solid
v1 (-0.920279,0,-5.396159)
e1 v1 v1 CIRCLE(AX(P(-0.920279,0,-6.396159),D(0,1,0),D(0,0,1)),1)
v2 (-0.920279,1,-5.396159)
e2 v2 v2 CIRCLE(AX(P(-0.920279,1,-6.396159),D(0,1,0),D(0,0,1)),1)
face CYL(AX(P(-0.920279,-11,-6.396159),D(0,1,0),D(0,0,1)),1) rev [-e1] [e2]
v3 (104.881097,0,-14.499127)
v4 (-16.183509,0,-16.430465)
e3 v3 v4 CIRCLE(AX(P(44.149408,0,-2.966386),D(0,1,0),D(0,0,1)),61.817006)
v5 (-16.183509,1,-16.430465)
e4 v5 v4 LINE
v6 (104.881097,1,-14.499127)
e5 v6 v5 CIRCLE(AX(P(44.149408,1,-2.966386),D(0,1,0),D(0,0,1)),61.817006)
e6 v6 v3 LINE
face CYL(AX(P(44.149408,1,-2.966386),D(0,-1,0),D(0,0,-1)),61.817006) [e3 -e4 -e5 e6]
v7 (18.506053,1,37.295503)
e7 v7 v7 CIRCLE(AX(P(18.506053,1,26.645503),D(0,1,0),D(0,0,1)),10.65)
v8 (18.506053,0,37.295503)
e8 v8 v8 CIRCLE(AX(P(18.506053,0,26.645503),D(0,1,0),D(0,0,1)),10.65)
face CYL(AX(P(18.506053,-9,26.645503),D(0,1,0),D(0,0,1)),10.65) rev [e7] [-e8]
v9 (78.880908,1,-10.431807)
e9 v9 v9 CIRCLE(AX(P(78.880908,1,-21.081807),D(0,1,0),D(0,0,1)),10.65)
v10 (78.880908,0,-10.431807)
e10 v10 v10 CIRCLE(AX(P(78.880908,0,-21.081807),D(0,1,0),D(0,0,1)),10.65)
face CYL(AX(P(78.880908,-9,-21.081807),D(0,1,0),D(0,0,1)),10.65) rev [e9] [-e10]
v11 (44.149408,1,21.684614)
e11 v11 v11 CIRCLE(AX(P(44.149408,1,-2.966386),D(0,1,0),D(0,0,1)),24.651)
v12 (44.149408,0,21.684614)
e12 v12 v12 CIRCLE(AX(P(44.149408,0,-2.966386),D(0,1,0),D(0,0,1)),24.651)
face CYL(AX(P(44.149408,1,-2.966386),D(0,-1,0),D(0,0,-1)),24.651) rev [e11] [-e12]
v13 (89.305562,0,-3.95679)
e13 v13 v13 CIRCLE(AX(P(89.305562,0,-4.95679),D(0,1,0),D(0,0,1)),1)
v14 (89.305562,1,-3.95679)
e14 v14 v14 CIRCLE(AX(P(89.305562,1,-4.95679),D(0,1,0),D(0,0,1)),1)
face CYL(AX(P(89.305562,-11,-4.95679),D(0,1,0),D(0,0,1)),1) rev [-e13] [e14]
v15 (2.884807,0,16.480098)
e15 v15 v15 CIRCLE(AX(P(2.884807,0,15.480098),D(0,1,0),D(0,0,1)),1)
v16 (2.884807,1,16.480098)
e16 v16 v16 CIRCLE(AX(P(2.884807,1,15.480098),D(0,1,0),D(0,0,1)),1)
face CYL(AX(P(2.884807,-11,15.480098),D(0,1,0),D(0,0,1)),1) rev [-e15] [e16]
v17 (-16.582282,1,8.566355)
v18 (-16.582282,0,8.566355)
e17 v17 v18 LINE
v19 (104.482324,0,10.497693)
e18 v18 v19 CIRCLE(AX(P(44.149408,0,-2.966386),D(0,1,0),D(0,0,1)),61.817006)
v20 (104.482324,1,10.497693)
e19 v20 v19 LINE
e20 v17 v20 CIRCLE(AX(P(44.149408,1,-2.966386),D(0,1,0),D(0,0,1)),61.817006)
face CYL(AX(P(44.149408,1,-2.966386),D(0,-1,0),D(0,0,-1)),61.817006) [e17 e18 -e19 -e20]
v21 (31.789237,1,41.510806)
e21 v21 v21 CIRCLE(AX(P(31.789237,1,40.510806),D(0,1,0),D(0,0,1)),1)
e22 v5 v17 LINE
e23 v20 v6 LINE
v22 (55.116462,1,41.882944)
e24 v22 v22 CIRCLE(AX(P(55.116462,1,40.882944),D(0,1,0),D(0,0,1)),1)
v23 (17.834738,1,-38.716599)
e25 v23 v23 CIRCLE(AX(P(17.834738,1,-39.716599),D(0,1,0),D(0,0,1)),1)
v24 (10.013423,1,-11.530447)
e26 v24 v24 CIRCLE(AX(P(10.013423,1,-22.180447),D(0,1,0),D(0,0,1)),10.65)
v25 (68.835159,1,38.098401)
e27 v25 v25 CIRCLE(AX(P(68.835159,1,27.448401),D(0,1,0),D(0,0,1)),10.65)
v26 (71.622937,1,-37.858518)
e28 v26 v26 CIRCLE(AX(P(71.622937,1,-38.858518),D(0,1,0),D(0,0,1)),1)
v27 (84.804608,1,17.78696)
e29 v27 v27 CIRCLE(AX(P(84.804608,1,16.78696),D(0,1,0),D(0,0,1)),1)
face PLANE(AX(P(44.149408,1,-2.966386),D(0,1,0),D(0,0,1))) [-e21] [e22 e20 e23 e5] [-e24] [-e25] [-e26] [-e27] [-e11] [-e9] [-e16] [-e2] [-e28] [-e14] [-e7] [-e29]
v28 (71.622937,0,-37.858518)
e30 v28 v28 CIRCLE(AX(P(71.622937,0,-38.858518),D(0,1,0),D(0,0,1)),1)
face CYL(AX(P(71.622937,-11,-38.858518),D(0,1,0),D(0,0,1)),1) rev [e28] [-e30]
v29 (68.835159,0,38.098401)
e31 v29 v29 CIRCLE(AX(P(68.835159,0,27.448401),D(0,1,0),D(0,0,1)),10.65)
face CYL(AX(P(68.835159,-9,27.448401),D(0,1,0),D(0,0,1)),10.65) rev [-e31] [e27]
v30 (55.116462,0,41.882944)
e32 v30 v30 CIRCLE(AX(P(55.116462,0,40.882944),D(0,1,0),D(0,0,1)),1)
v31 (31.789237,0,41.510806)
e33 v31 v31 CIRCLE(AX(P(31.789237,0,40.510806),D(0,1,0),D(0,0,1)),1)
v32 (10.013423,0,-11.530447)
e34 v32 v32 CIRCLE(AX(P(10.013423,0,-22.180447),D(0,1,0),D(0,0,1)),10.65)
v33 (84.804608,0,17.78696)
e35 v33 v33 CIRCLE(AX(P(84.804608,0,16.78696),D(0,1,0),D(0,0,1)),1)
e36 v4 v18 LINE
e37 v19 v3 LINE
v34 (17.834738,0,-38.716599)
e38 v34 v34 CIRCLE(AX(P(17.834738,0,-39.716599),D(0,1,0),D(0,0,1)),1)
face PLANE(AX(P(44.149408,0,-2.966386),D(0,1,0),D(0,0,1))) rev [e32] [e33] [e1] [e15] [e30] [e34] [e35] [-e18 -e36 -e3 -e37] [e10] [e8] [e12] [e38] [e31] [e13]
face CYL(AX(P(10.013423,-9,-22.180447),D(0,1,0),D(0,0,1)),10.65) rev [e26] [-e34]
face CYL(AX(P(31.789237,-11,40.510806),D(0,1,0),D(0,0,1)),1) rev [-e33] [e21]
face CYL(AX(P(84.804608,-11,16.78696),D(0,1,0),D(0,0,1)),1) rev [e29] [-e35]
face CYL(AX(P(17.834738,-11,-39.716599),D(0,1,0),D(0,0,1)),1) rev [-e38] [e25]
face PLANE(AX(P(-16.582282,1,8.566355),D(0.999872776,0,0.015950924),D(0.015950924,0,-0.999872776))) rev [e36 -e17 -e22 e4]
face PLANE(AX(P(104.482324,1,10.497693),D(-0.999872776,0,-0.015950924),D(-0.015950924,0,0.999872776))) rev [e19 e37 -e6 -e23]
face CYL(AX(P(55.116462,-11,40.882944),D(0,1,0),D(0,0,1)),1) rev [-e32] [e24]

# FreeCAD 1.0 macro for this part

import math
import FreeCAD as App
import Part
import Sketcher

V = App.Vector

doc = App.newDocument("Part")
body = doc.addObject("PartDesign::Body", "Body")

# Sketch on XZ plane
sketch1 = body.newObject("Sketcher::SketchObject", "Sketch")
sketch1.AttachmentSupport = (doc.getObject("XZ_Plane"), [""])
sketch1.MapMode = "FlatFace"
sketch1.addGeometry([
    Part.LineSegment(V(-16.183509, -16.430465, 0), V(-16.582282, 8.566355, 0)),  # 0
    Part.ArcOfCircle(Part.Circle(V(44.149408, -2.966386, 0), V(0, 0, 1), 61.817006), math.radians(12.580167), math.radians(169.247752)),  # 1
    Part.LineSegment(V(104.482324, 10.497693, 0), V(104.881097, -14.499127, 0)),  # 2
    Part.ArcOfCircle(Part.Circle(V(44.149408, -2.966386, 0), V(0, 0, 1), 61.817006), math.radians(-167.419833), math.radians(-10.752248)),  # 3
    Part.Circle(V(44.149408, -2.966386, 0), V(0, 0, 1), 24.651),  # 4
], False)
sketch1.addConstraint([
    Sketcher.Constraint("Coincident", 0, 2, 1, 2),
    Sketcher.Constraint("Coincident", 1, 1, 2, 1),
    Sketcher.Constraint("Coincident", 2, 2, 3, 2),
    Sketcher.Constraint("Coincident", 3, 1, 0, 1),
    Sketcher.Constraint("Coincident", 3, 3, 1, 3),
    Sketcher.Constraint("Coincident", 4, 3, 1, 3),
    Sketcher.Constraint("Equal", 1, 3),
    Sketcher.Constraint("Parallel", 0, 2),
    Sketcher.Constraint("Equal", 0, 2),
    Sketcher.Constraint("Distance", 0, 25.0),
    Sketcher.Constraint("Diameter", 4, 49.302),
    Sketcher.Constraint("Radius", 1, 61.817006),
    Sketcher.Constraint("DistanceX", 3, 1, -1, 1, 16.183509),
    Sketcher.Constraint("DistanceX", 0, 2, 1, 3, 60.73169),
    Sketcher.Constraint("DistanceY", 1, 3, -1, 1, 2.966386),
])
pad1 = body.newObject("PartDesign::Pad", "Pad")
pad1.Profile = sketch1
pad1.Length = 1
pad1.Reversed = True

# Sketch on XZ plane
sketch2 = body.newObject("Sketcher::SketchObject", "Sketch001")
sketch2.AttachmentSupport = (doc.getObject("XZ_Plane"), [""])
sketch2.MapMode = "FlatFace"
sketch2.AttachmentOffset = App.Placement(V(0, 0, -1), App.Rotation())
sketch2.addGeometry([
    Part.Circle(V(68.835159, 27.448401, 0), V(0, 0, 1), 10.65),
    Part.Circle(V(18.506053, 26.645503, 0), V(0, 0, 1), 10.65),
    Part.Circle(V(10.013423, -22.180447, 0), V(0, 0, 1), 10.65),
    Part.Circle(V(78.880908, -21.081807, 0), V(0, 0, 1), 10.65),
], False)
sketch2.addConstraint([
    Sketcher.Constraint("Equal", 0, 1),
    Sketcher.Constraint("Equal", 1, 2),
    Sketcher.Constraint("Equal", 2, 3),
    Sketcher.Constraint("Diameter", 0, 21.3),
    Sketcher.Constraint("DistanceY", -1, 1, 0, 3, 27.448401),
    Sketcher.Constraint("DistanceX", -1, 1, 0, 3, 68.835159),
    Sketcher.Constraint("DistanceX", 2, 3, 1, 3, 8.49263),
    Sketcher.Constraint("DistanceY", 2, 3, 1, 3, 48.82595),
    Sketcher.Constraint("DistanceX", 0, 3, 3, 3, 10.045749),
    Sketcher.Constraint("DistanceY", 2, 3, 3, 3, 1.09864),
    Sketcher.Constraint("DistanceX", -1, 1, 1, 3, 18.506053),
    Sketcher.Constraint("DistanceY", -1, 1, 1, 3, 26.645503),
])
pocket1 = body.newObject("PartDesign::Pocket", "Pocket")
pocket1.Profile = sketch2
pocket1.Length = 10
pocket1.Reversed = True

# Sketch on XZ plane
sketch3 = body.newObject("Sketcher::SketchObject", "Sketch002")
sketch3.AttachmentSupport = (doc.getObject("XZ_Plane"), [""])
sketch3.MapMode = "FlatFace"
sketch3.AttachmentOffset = App.Placement(V(0, 0, -1), App.Rotation())
sketch3.addGeometry([
    Part.Circle(V(55.116462, 40.882944, 0), V(0, 0, 1), 1),  # 0
    Part.Circle(V(31.789237, 40.510806, 0), V(0, 0, 1), 1),  # 1
    Part.Circle(V(2.884807, 15.480098, 0), V(0, 0, 1), 1),  # 2
    Part.Circle(V(-0.920279, -6.396159, 0), V(0, 0, 1), 1),  # 3
    Part.Circle(V(17.834738, -39.716599, 0), V(0, 0, 1), 1),  # 4
    Part.Circle(V(71.622937, -38.858518, 0), V(0, 0, 1), 1),  # 5
    Part.Circle(V(89.305562, -4.95679, 0), V(0, 0, 1), 1),  # 6
    Part.Circle(V(84.804608, 16.78696, 0), V(0, 0, 1), 1),  # 7
], False)
sketch3.addConstraint([
    Sketcher.Constraint("Equal", 0, 1),
    Sketcher.Constraint("Equal", 1, 2),
    Sketcher.Constraint("Equal", 2, 3),
    Sketcher.Constraint("Equal", 3, 4),
    Sketcher.Constraint("Equal", 4, 5),
    Sketcher.Constraint("Equal", 5, 6),
    Sketcher.Constraint("Equal", 6, 7),
    Sketcher.Constraint("Diameter", 0, 2.0),
    Sketcher.Constraint("DistanceY", 4, 3, -1, 1, 39.716599),
    Sketcher.Constraint("DistanceX", 4, 3, 1, 3, 13.9545),
    Sketcher.Constraint("DistanceX", 4, 3, 5, 3, 53.7882),
    Sketcher.Constraint("DistanceX", 0, 3, 6, 3, 34.1891),
    Sketcher.Constraint("DistanceX", 2, 3, 7, 3, 81.9198),
    Sketcher.Constraint("DistanceX", -1, 1, 0, 3, 55.116462),
    Sketcher.Constraint("DistanceX", 3, 3, -1, 1, 0.920279),
    Sketcher.Constraint("DistanceY", 3, 3, -1, 1, 6.396159),
    Sketcher.Constraint("DistanceY", 5, 3, -1, 1, 38.858518),
    Sketcher.Constraint("DistanceY", 6, 3, -1, 1, 4.95679),
    Sketcher.Constraint("DistanceY", -1, 1, 7, 3, 16.78696),
    Sketcher.Constraint("DistanceY", 1, 3, 0, 3, 0.372138),
    Sketcher.Constraint("DistanceX", 2, 3, 1, 3, 28.90443),
    Sketcher.Constraint("DistanceY", -1, 1, 0, 3, 40.882944),
    Sketcher.Constraint("DistanceX", -1, 1, 1, 3, 31.789237),
    Sketcher.Constraint("DistanceY", -1, 1, 2, 3, 15.480098),
])
pocket2 = body.newObject("PartDesign::Pocket", "Pocket001")
pocket2.Profile = sketch3
pocket2.Length = 12
pocket2.Reversed = True

doc.recompute()
